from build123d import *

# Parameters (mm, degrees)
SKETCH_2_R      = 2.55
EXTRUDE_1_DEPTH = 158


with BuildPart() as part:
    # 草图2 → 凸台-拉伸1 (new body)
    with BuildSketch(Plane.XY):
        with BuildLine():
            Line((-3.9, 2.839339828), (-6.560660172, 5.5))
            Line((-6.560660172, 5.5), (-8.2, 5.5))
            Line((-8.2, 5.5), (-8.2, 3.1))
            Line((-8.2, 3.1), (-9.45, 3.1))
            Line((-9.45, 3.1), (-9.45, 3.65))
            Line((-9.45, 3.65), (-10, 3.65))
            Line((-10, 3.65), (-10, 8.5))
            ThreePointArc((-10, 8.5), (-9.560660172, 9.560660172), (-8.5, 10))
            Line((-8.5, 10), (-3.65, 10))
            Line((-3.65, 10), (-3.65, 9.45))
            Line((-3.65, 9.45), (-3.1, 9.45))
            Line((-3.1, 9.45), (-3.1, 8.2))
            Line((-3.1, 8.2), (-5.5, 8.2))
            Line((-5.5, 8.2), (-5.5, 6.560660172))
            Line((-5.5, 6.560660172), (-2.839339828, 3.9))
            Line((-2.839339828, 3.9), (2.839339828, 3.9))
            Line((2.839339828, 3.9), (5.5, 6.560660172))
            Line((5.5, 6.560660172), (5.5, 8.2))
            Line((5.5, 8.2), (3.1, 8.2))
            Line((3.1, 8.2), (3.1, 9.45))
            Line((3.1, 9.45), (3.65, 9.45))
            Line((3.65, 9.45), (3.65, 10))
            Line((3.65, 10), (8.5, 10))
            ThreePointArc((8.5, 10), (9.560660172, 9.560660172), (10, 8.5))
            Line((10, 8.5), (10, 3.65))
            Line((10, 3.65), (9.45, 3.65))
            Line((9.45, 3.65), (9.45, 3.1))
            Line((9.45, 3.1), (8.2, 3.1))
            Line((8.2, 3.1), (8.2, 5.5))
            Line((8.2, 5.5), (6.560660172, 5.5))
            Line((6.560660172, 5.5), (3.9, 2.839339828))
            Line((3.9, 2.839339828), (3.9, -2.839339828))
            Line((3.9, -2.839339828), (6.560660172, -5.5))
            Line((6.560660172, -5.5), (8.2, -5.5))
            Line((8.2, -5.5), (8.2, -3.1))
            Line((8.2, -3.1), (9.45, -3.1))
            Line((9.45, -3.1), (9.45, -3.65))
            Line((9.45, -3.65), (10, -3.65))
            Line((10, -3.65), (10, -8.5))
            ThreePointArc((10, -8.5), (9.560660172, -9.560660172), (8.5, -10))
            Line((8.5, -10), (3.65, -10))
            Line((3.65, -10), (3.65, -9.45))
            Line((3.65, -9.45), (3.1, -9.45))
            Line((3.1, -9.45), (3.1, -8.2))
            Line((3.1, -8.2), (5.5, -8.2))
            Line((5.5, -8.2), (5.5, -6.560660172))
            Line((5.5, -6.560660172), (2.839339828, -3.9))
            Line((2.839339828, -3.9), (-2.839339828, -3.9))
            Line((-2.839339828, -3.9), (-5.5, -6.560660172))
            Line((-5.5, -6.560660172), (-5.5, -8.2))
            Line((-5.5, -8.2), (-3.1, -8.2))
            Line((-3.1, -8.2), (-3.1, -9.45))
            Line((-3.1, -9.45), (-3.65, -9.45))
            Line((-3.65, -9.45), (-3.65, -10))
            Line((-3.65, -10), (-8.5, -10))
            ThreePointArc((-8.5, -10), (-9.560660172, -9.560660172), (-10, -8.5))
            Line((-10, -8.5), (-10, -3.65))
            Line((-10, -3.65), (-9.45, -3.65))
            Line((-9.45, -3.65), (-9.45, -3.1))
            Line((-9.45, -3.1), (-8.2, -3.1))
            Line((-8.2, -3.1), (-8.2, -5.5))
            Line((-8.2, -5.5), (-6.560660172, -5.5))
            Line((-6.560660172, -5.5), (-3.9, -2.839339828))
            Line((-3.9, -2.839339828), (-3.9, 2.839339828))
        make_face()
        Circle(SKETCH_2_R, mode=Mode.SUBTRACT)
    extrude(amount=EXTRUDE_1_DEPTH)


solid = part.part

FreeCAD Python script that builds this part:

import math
import FreeCAD as App
import Part
import Sketcher

doc = App.newDocument("Part")
body = doc.addObject("PartDesign::Body", "Body")

# Sketch on XY plane
sketch1 = body.newObject("Sketcher::SketchObject", "Sketch")
sketch1.AttachmentSupport = (doc.getObject("XY_Plane"), [""])
sketch1.MapMode = "FlatFace"
sketch1.addGeometry(Part.LineSegment(App.Vector(-6.56066, 5.5, 0), App.Vector(-3.9, 2.83934, 0)), False)
sketch1.addGeometry(Part.LineSegment(App.Vector(-3.9, 2.83934, 0), App.Vector(-3.9, -2.83934, 0)), False)
sketch1.addGeometry(Part.LineSegment(App.Vector(-3.9, -2.83934, 0), App.Vector(-6.56066, -5.5, 0)), False)
sketch1.addGeometry(Part.LineSegment(App.Vector(-6.56066, -5.5, 0), App.Vector(-8.2, -5.5, 0)), False)
sketch1.addGeometry(Part.LineSegment(App.Vector(-8.2, -5.5, 0), App.Vector(-8.2, -3.1, 0)), False)
sketch1.addGeometry(Part.LineSegment(App.Vector(-8.2, -3.1, 0), App.Vector(-9.45, -3.1, 0)), False)
sketch1.addGeometry(Part.LineSegment(App.Vector(-9.45, -3.1, 0), App.Vector(-9.45, -3.65, 0)), False)
sketch1.addGeometry(Part.LineSegment(App.Vector(-9.45, -3.65, 0), App.Vector(-10, -3.65, 0)), False)
sketch1.addGeometry(Part.LineSegment(App.Vector(-10, -3.65, 0), App.Vector(-10, -8.5, 0)), False)
sketch1.addGeometry(Part.ArcOfCircle(Part.Circle(App.Vector(-8.5, -8.5, 0), App.Vector(0, 0, 1), 1.5), math.radians(180), math.radians(270)), False)
sketch1.addGeometry(Part.LineSegment(App.Vector(-8.5, -10, 0), App.Vector(-3.65, -10, 0)), False)
sketch1.addGeometry(Part.LineSegment(App.Vector(-3.65, -10, 0), App.Vector(-3.65, -9.45, 0)), False)
sketch1.addGeometry(Part.LineSegment(App.Vector(-3.65, -9.45, 0), App.Vector(-3.1, -9.45, 0)), False)
sketch1.addGeometry(Part.LineSegment(App.Vector(-3.1, -9.45, 0), App.Vector(-3.1, -8.2, 0)), False)
sketch1.addGeometry(Part.LineSegment(App.Vector(-3.1, -8.2, 0), App.Vector(-5.5, -8.2, 0)), False)
sketch1.addGeometry(Part.LineSegment(App.Vector(-5.5, -8.2, 0), App.Vector(-5.5, -6.56066, 0)), False)
sketch1.addGeometry(Part.LineSegment(App.Vector(-5.5, -6.56066, 0), App.Vector(-2.83934, -3.9, 0)), False)
sketch1.addGeometry(Part.LineSegment(App.Vector(-2.83934, -3.9, 0), App.Vector(2.83934, -3.9, 0)), False)
sketch1.addGeometry(Part.LineSegment(App.Vector(2.83934, -3.9, 0), App.Vector(5.5, -6.56066, 0)), False)
sketch1.addGeometry(Part.LineSegment(App.Vector(5.5, -6.56066, 0), App.Vector(5.5, -8.2, 0)), False)
sketch1.addGeometry(Part.LineSegment(App.Vector(5.5, -8.2, 0), App.Vector(3.1, -8.2, 0)), False)
sketch1.addGeometry(Part.LineSegment(App.Vector(3.1, -8.2, 0), App.Vector(3.1, -9.45, 0)), False)
sketch1.addGeometry(Part.LineSegment(App.Vector(3.1, -9.45, 0), App.Vector(3.65, -9.45, 0)), False)
sketch1.addGeometry(Part.LineSegment(App.Vector(3.65, -9.45, 0), App.Vector(3.65, -10, 0)), False)
sketch1.addGeometry(Part.LineSegment(App.Vector(3.65, -10, 0), App.Vector(8.5, -10, 0)), False)
sketch1.addGeometry(Part.ArcOfCircle(Part.Circle(App.Vector(8.5, -8.5, 0), App.Vector(0, 0, 1), 1.5), math.radians(-90), math.radians(0)), False)
sketch1.addGeometry(Part.LineSegment(App.Vector(10, -8.5, 0), App.Vector(10, -3.65, 0)), False)
sketch1.addGeometry(Part.LineSegment(App.Vector(10, -3.65, 0), App.Vector(9.45, -3.65, 0)), False)
sketch1.addGeometry(Part.LineSegment(App.Vector(9.45, -3.65, 0), App.Vector(9.45, -3.1, 0)), False)
sketch1.addGeometry(Part.LineSegment(App.Vector(9.45, -3.1, 0), App.Vector(8.2, -3.1, 0)), False)
sketch1.addGeometry(Part.LineSegment(App.Vector(8.2, -3.1, 0), App.Vector(8.2, -5.5, 0)), False)
sketch1.addGeometry(Part.LineSegment(App.Vector(8.2, -5.5, 0), App.Vector(6.56066, -5.5, 0)), False)
sketch1.addGeometry(Part.LineSegment(App.Vector(6.56066, -5.5, 0), App.Vector(3.9, -2.83934, 0)), False)
sketch1.addGeometry(Part.LineSegment(App.Vector(3.9, -2.83934, 0), App.Vector(3.9, 2.83934, 0)), False)
sketch1.addGeometry(Part.LineSegment(App.Vector(3.9, 2.83934, 0), App.Vector(6.56066, 5.5, 0)), False)
sketch1.addGeometry(Part.LineSegment(App.Vector(6.56066, 5.5, 0), App.Vector(8.2, 5.5, 0)), False)
sketch1.addGeometry(Part.LineSegment(App.Vector(8.2, 5.5, 0), App.Vector(8.2, 3.1, 0)), False)
sketch1.addGeometry(Part.LineSegment(App.Vector(8.2, 3.1, 0), App.Vector(9.45, 3.1, 0)), False)
sketch1.addGeometry(Part.LineSegment(App.Vector(9.45, 3.1, 0), App.Vector(9.45, 3.65, 0)), False)
sketch1.addGeometry(Part.LineSegment(App.Vector(9.45, 3.65, 0), App.Vector(10, 3.65, 0)), False)
sketch1.addGeometry(Part.LineSegment(App.Vector(10, 3.65, 0), App.Vector(10, 8.5, 0)), False)
sketch1.addGeometry(Part.ArcOfCircle(Part.Circle(App.Vector(8.5, 8.5, 0), App.Vector(0, 0, 1), 1.5), math.radians(0), math.radians(90)), False)
sketch1.addGeometry(Part.LineSegment(App.Vector(8.5, 10, 0), App.Vector(3.65, 10, 0)), False)
sketch1.addGeometry(Part.LineSegment(App.Vector(3.65, 10, 0), App.Vector(3.65, 9.45, 0)), False)
sketch1.addGeometry(Part.LineSegment(App.Vector(3.65, 9.45, 0), App.Vector(3.1, 9.45, 0)), False)
sketch1.addGeometry(Part.LineSegment(App.Vector(3.1, 9.45, 0), App.Vector(3.1, 8.2, 0)), False)
sketch1.addGeometry(Part.LineSegment(App.Vector(3.1, 8.2, 0), App.Vector(5.5, 8.2, 0)), False)
sketch1.addGeometry(Part.LineSegment(App.Vector(5.5, 8.2, 0), App.Vector(5.5, 6.56066, 0)), False)
sketch1.addGeometry(Part.LineSegment(App.Vector(5.5, 6.56066, 0), App.Vector(2.83934, 3.9, 0)), False)
sketch1.addGeometry(Part.LineSegment(App.Vector(2.83934, 3.9, 0), App.Vector(-2.83934, 3.9, 0)), False)
sketch1.addGeometry(Part.LineSegment(App.Vector(-2.83934, 3.9, 0), App.Vector(-5.5, 6.56066, 0)), False)
sketch1.addGeometry(Part.LineSegment(App.Vector(-5.5, 6.56066, 0), App.Vector(-5.5, 8.2, 0)), False)
sketch1.addGeometry(Part.LineSegment(App.Vector(-5.5, 8.2, 0), App.Vector(-3.1, 8.2, 0)), False)
sketch1.addGeometry(Part.LineSegment(App.Vector(-3.1, 8.2, 0), App.Vector(-3.1, 9.45, 0)), False)
sketch1.addGeometry(Part.LineSegment(App.Vector(-3.1, 9.45, 0), App.Vector(-3.65, 9.45, 0)), False)
sketch1.addGeometry(Part.LineSegment(App.Vector(-3.65, 9.45, 0), App.Vector(-3.65, 10, 0)), False)
sketch1.addGeometry(Part.LineSegment(App.Vector(-3.65, 10, 0), App.Vector(-8.5, 10, 0)), False)
sketch1.addGeometry(Part.ArcOfCircle(Part.Circle(App.Vector(-8.5, 8.5, 0), App.Vector(0, 0, 1), 1.5), math.radians(90), math.radians(180)), False)
sketch1.addGeometry(Part.LineSegment(App.Vector(-10, 8.5, 0), App.Vector(-10, 3.65, 0)), False)
sketch1.addGeometry(Part.LineSegment(App.Vector(-10, 3.65, 0), App.Vector(-9.45, 3.65, 0)), False)
sketch1.addGeometry(Part.LineSegment(App.Vector(-9.45, 3.65, 0), App.Vector(-9.45, 3.1, 0)), False)
sketch1.addGeometry(Part.LineSegment(App.Vector(-9.45, 3.1, 0), App.Vector(-8.2, 3.1, 0)), False)
sketch1.addGeometry(Part.LineSegment(App.Vector(-8.2, 3.1, 0), App.Vector(-8.2, 5.5, 0)), False)
sketch1.addGeometry(Part.LineSegment(App.Vector(-8.2, 5.5, 0), App.Vector(-6.56066, 5.5, 0)), False)
sketch1.addGeometry(Part.Circle(App.Vector(0, 0, 0), App.Vector(0, 0, 1), 2.55), False)
sketch1.addConstraint(Sketcher.Constraint("Coincident", 0, 2, 1, 1))
sketch1.addConstraint(Sketcher.Constraint("Coincident", 1, 2, 2, 1))
sketch1.addConstraint(Sketcher.Constraint("Coincident", 2, 2, 3, 1))
sketch1.addConstraint(Sketcher.Constraint("Coincident", 3, 2, 4, 1))
sketch1.addConstraint(Sketcher.Constraint("Coincident", 4, 2, 5, 1))
sketch1.addConstraint(Sketcher.Constraint("Coincident", 5, 2, 6, 1))
sketch1.addConstraint(Sketcher.Constraint("Coincident", 6, 2, 7, 1))
sketch1.addConstraint(Sketcher.Constraint("Coincident", 7, 2, 8, 1))
sketch1.addConstraint(Sketcher.Constraint("Tangent", 8, 2, 9, 1))
sketch1.addConstraint(Sketcher.Constraint("Tangent", 9, 2, 10, 1))
sketch1.addConstraint(Sketcher.Constraint("Coincident", 10, 2, 11, 1))
sketch1.addConstraint(Sketcher.Constraint("Coincident", 11, 2, 12, 1))
sketch1.addConstraint(Sketcher.Constraint("Coincident", 12, 2, 13, 1))
sketch1.addConstraint(Sketcher.Constraint("Coincident", 13, 2, 14, 1))
sketch1.addConstraint(Sketcher.Constraint("Coincident", 14, 2, 15, 1))
sketch1.addConstraint(Sketcher.Constraint("Coincident", 15, 2, 16, 1))
sketch1.addConstraint(Sketcher.Constraint("Coincident", 16, 2, 17, 1))
sketch1.addConstraint(Sketcher.Constraint("Coincident", 17, 2, 18, 1))
sketch1.addConstraint(Sketcher.Constraint("Coincident", 18, 2, 19, 1))
sketch1.addConstraint(Sketcher.Constraint("Coincident", 19, 2, 20, 1))
sketch1.addConstraint(Sketcher.Constraint("Coincident", 20, 2, 21, 1))
sketch1.addConstraint(Sketcher.Constraint("Coincident", 21, 2, 22, 1))
sketch1.addConstraint(Sketcher.Constraint("Coincident", 22, 2, 23, 1))
sketch1.addConstraint(Sketcher.Constraint("Coincident", 23, 2, 24, 1))
sketch1.addConstraint(Sketcher.Constraint("Tangent", 24, 2, 25, 1))
sketch1.addConstraint(Sketcher.Constraint("Tangent", 25, 2, 26, 1))
sketch1.addConstraint(Sketcher.Constraint("Coincident", 26, 2, 27, 1))
sketch1.addConstraint(Sketcher.Constraint("Coincident", 27, 2, 28, 1))
sketch1.addConstraint(Sketcher.Constraint("Coincident", 28, 2, 29, 1))
sketch1.addConstraint(Sketcher.Constraint("Coincident", 29, 2, 30, 1))
sketch1.addConstraint(Sketcher.Constraint("Coincident", 30, 2, 31, 1))
sketch1.addConstraint(Sketcher.Constraint("Coincident", 31, 2, 32, 1))
sketch1.addConstraint(Sketcher.Constraint("Coincident", 32, 2, 33, 1))
sketch1.addConstraint(Sketcher.Constraint("Coincident", 33, 2, 34, 1))
sketch1.addConstraint(Sketcher.Constraint("Coincident", 34, 2, 35, 1))
sketch1.addConstraint(Sketcher.Constraint("Coincident", 35, 2, 36, 1))
sketch1.addConstraint(Sketcher.Constraint("Coincident", 36, 2, 37, 1))
sketch1.addConstraint(Sketcher.Constraint("Coincident", 37, 2, 38, 1))
sketch1.addConstraint(Sketcher.Constraint("Coincident", 38, 2, 39, 1))
sketch1.addConstraint(Sketcher.Constraint("Coincident", 39, 2, 40, 1))
sketch1.addConstraint(Sketcher.Constraint("Tangent", 40, 2, 41, 1))
sketch1.addConstraint(Sketcher.Constraint("Tangent", 41, 2, 42, 1))
sketch1.addConstraint(Sketcher.Constraint("Coincident", 42, 2, 43, 1))
sketch1.addConstraint(Sketcher.Constraint("Coincident", 43, 2, 44, 1))
sketch1.addConstraint(Sketcher.Constraint("Coincident", 44, 2, 45, 1))
sketch1.addConstraint(Sketcher.Constraint("Coincident", 45, 2, 46, 1))
sketch1.addConstraint(Sketcher.Constraint("Coincident", 46, 2, 47, 1))
sketch1.addConstraint(Sketcher.Constraint("Coincident", 47, 2, 48, 1))
sketch1.addConstraint(Sketcher.Constraint("Coincident", 48, 2, 49, 1))
sketch1.addConstraint(Sketcher.Constraint("Coincident", 49, 2, 50, 1))
sketch1.addConstraint(Sketcher.Constraint("Coincident", 50, 2, 51, 1))
sketch1.addConstraint(Sketcher.Constraint("Coincident", 51, 2, 52, 1))
sketch1.addConstraint(Sketcher.Constraint("Coincident", 52, 2, 53, 1))
sketch1.addConstraint(Sketcher.Constraint("Coincident", 53, 2, 54, 1))
sketch1.addConstraint(Sketcher.Constraint("Coincident", 54, 2, 55, 1))
sketch1.addConstraint(Sketcher.Constraint("Coincident", 55, 2, 56, 1))
sketch1.addConstraint(Sketcher.Constraint("Tangent", 56, 2, 57, 1))
sketch1.addConstraint(Sketcher.Constraint("Tangent", 57, 2, 58, 1))
sketch1.addConstraint(Sketcher.Constraint("Coincident", 58, 2, 59, 1))
sketch1.addConstraint(Sketcher.Constraint("Coincident", 59, 2, 60, 1))
sketch1.addConstraint(Sketcher.Constraint("Coincident", 60, 2, 61, 1))
sketch1.addConstraint(Sketcher.Constraint("Coincident", 61, 2, 62, 1))
sketch1.addConstraint(Sketcher.Constraint("Coincident", 62, 2, 63, 1))
sketch1.addConstraint(Sketcher.Constraint("Coincident", 63, 2, 0, 1))
sketch1.addConstraint(Sketcher.Constraint("Vertical", 1))
sketch1.addConstraint(Sketcher.Constraint("Horizontal", 3))
sketch1.addConstraint(Sketcher.Constraint("Vertical", 4))
sketch1.addConstraint(Sketcher.Constraint("Horizontal", 5))
sketch1.addConstraint(Sketcher.Constraint("Vertical", 6))
sketch1.addConstraint(Sketcher.Constraint("Horizontal", 7))
sketch1.addConstraint(Sketcher.Constraint("Vertical", 8))
sketch1.addConstraint(Sketcher.Constraint("Horizontal", 10))
sketch1.addConstraint(Sketcher.Constraint("Vertical", 11))
sketch1.addConstraint(Sketcher.Constraint("Horizontal", 12))
sketch1.addConstraint(Sketcher.Constraint("Vertical", 13))
sketch1.addConstraint(Sketcher.Constraint("Horizontal", 14))
sketch1.addConstraint(Sketcher.Constraint("Vertical", 15))
sketch1.addConstraint(Sketcher.Constraint("Horizontal", 17))
sketch1.addConstraint(Sketcher.Constraint("Vertical", 19))
sketch1.addConstraint(Sketcher.Constraint("Horizontal", 20))
sketch1.addConstraint(Sketcher.Constraint("Vertical", 21))
sketch1.addConstraint(Sketcher.Constraint("Horizontal", 22))
sketch1.addConstraint(Sketcher.Constraint("Vertical", 23))
sketch1.addConstraint(Sketcher.Constraint("Horizontal", 24))
sketch1.addConstraint(Sketcher.Constraint("Vertical", 26))
sketch1.addConstraint(Sketcher.Constraint("Horizontal", 27))
sketch1.addConstraint(Sketcher.Constraint("Vertical", 28))
sketch1.addConstraint(Sketcher.Constraint("Horizontal", 29))
sketch1.addConstraint(Sketcher.Constraint("Vertical", 30))
sketch1.addConstraint(Sketcher.Constraint("Horizontal", 31))
sketch1.addConstraint(Sketcher.Constraint("Vertical", 33))
sketch1.addConstraint(Sketcher.Constraint("Horizontal", 35))
sketch1.addConstraint(Sketcher.Constraint("Vertical", 36))
sketch1.addConstraint(Sketcher.Constraint("Horizontal", 37))
sketch1.addConstraint(Sketcher.Constraint("Vertical", 38))
sketch1.addConstraint(Sketcher.Constraint("Horizontal", 39))
sketch1.addConstraint(Sketcher.Constraint("Vertical", 40))
sketch1.addConstraint(Sketcher.Constraint("Horizontal", 42))
sketch1.addConstraint(Sketcher.Constraint("Vertical", 43))
sketch1.addConstraint(Sketcher.Constraint("Horizontal", 44))
sketch1.addConstraint(Sketcher.Constraint("Vertical", 45))
sketch1.addConstraint(Sketcher.Constraint("Horizontal", 46))
sketch1.addConstraint(Sketcher.Constraint("Vertical", 47))
sketch1.addConstraint(Sketcher.Constraint("Horizontal", 49))
sketch1.addConstraint(Sketcher.Constraint("Vertical", 51))
sketch1.addConstraint(Sketcher.Constraint("Horizontal", 52))
sketch1.addConstraint(Sketcher.Constraint("Vertical", 53))
sketch1.addConstraint(Sketcher.Constraint("Horizontal", 54))
sketch1.addConstraint(Sketcher.Constraint("Vertical", 55))
sketch1.addConstraint(Sketcher.Constraint("Horizontal", 56))
sketch1.addConstraint(Sketcher.Constraint("Vertical", 58))
sketch1.addConstraint(Sketcher.Constraint("Horizontal", 59))
sketch1.addConstraint(Sketcher.Constraint("Vertical", 60))
sketch1.addConstraint(Sketcher.Constraint("Horizontal", 61))
sketch1.addConstraint(Sketcher.Constraint("Vertical", 62))
sketch1.addConstraint(Sketcher.Constraint("Horizontal", 63))
sketch1.addConstraint(Sketcher.Constraint("Coincident", 64, 3, -1, 1))
sketch1.addConstraint(Sketcher.Constraint("Equal", 9, 25))
sketch1.addConstraint(Sketcher.Constraint("Equal", 25, 41))
sketch1.addConstraint(Sketcher.Constraint("Equal", 41, 57))
sketch1.addConstraint(Sketcher.Constraint("Symmetric", 9, 3, 41, 3, -1, 1))
sketch1.addConstraint(Sketcher.Constraint("Symmetric", 25, 3, 57, 3, -1, 1))
sketch1.addConstraint(Sketcher.Constraint("Symmetric", 0, 2, 32, 2, -1, 1))
sketch1.addConstraint(Sketcher.Constraint("Symmetric", 2, 2, 34, 2, -1, 1))
sketch1.addConstraint(Sketcher.Constraint("Symmetric", 4, 2, 36, 2, -1, 1))
sketch1.addConstraint(Sketcher.Constraint("Symmetric", 6, 2, 38, 2, -1, 1))
sketch1.addConstraint(Sketcher.Constraint("Symmetric", 11, 2, 43, 2, -1, 1))
sketch1.addConstraint(Sketcher.Constraint("Symmetric", 13, 2, 45, 2, -1, 1))
sketch1.addConstraint(Sketcher.Constraint("Symmetric", 15, 2, 47, 2, -1, 1))
sketch1.addConstraint(Sketcher.Constraint("Symmetric", 16, 2, 48, 2, -1, 1))
sketch1.addConstraint(Sketcher.Constraint("Symmetric", 18, 2, 50, 2, -1, 1))
sketch1.addConstraint(Sketcher.Constraint("Symmetric", 20, 2, 52, 2, -1, 1))
sketch1.addConstraint(Sketcher.Constraint("Symmetric", 22, 2, 54, 2, -1, 1))
sketch1.addConstraint(Sketcher.Constraint("Symmetric", 27, 2, 59, 2, -1, 1))
sketch1.addConstraint(Sketcher.Constraint("Symmetric", 29, 2, 61, 2, -1, 1))
sketch1.addConstraint(Sketcher.Constraint("Symmetric", 31, 2, 63, 2, -1, 1))
sketch1.addConstraint(Sketcher.Constraint("Symmetric", 9, 3, 25, 3, -2))
sketch1.addConstraint(Sketcher.Constraint("Symmetric", 15, 2, 18, 2, -2))
sketch1.addConstraint(Sketcher.Constraint("Symmetric", 13, 2, 20, 2, -2))
sketch1.addConstraint(Sketcher.Constraint("Symmetric", 11, 2, 22, 2, -2))
sketch1.addConstraint(Sketcher.Constraint("Symmetric", 6, 2, 27, 2, -2))
sketch1.addConstraint(Sketcher.Constraint("Symmetric", 4, 2, 29, 2, -2))
sketch1.addConstraint(Sketcher.Constraint("Symmetric", 2, 2, 31, 2, -2))
sketch1.addConstraint(Sketcher.Constraint("Perpendicular", 0, 2))
sketch1.addConstraint(Sketcher.Constraint("Parallel", 2, 16))
sketch1.addConstraint(Sketcher.Constraint("Perpendicular", 16, 18))
sketch1.addConstraint(Sketcher.Constraint("Perpendicular", 32, 34))
sketch1.addConstraint(Sketcher.Constraint("Perpendicular", 48, 50))
sketch1.addConstraint(Sketcher.Constraint("Horizontal", 1, 2, 32, 2))
sketch1.addConstraint(Sketcher.Constraint("Equal", 7, 12))
sketch1.addConstraint(Sketcher.Constraint("Equal", 49, 1))
sketch1.addConstraint(Sketcher.Constraint("Equal", 52, 4))
sketch1.addConstraint(Sketcher.Constraint("Equal", 59, 6))
sketch1.addConstraint(Sketcher.Constraint("Equal", 56, 8))
sketch1.addConstraint(Sketcher.Constraint("Equal", 6, 11))
sketch1.addConstraint(Sketcher.Constraint("Equal", 61, 13))
sketch1.addConstraint(Sketcher.Constraint("Equal", 63, 15))
sketch1.addConstraint(Sketcher.Constraint("Equal", 2, 16))
sketch1.addConstraint(Sketcher.Constraint("Diameter", 64, 5.1))
sketch1.addConstraint(Sketcher.Constraint("Radius", 9, 1.5))
sketch1.addConstraint(Sketcher.Constraint("DistanceX", 14, 2, 14, 1, 2.4))
sketch1.addConstraint(Sketcher.Constraint("DistanceX", 7, 2, -1, 1, 10.0))
sketch1.addConstraint(Sketcher.Constraint("DistanceX", 5, 2, 5, 1, 1.25))
sketch1.addConstraint(Sketcher.Constraint("DistanceX", 7, 2, 7, 1, 0.55))
sketch1.addConstraint(Sketcher.Constraint("DistanceX", 10, 1, 10, 2, 4.85))
sketch1.addConstraint(Sketcher.Constraint("DistanceX", 0, 2, -1, 1, 3.9))
sketch1.addConstraint(Sketcher.Constraint("DistanceX", 3, 2, 3, 1, 1.63934))
pad1 = body.newObject("PartDesign::Pad", "Pad")
pad1.Profile = sketch1
pad1.Length = 158

doc.recompute()
